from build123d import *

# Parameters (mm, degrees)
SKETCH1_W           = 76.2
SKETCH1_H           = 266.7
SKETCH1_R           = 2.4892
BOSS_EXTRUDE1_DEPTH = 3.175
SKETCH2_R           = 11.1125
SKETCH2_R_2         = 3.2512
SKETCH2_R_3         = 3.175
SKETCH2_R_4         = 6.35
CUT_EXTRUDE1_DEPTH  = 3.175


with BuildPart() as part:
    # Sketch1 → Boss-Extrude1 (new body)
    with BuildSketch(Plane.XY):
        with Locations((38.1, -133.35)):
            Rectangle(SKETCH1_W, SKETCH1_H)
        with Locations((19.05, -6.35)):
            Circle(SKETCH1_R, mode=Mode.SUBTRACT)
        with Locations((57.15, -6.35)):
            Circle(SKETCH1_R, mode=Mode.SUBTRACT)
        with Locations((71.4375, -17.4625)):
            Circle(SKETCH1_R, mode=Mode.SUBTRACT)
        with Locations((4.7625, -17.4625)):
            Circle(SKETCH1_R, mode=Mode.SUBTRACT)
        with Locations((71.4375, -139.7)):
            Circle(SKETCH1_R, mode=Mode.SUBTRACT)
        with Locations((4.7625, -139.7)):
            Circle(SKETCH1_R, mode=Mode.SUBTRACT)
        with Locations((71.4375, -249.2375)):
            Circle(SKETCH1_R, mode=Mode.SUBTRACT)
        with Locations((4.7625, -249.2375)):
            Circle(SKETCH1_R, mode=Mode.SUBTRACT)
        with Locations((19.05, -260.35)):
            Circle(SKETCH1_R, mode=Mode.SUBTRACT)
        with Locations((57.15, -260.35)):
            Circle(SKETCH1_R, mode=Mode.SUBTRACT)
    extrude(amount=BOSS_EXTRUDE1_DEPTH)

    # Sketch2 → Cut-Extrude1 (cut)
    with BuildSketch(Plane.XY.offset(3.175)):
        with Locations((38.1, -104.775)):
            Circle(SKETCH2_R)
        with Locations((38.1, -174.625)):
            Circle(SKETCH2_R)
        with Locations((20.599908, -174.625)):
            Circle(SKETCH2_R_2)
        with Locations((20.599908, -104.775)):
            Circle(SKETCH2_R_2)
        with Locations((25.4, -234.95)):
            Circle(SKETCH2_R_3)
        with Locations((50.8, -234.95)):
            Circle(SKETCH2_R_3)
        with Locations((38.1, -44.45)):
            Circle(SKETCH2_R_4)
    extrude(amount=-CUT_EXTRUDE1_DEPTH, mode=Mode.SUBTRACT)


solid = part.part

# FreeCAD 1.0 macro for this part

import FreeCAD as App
import Part
import Sketcher

V = App.Vector
Q = App.Units.Quantity


def add_polygon(sketch, points):
    """Adds a closed chain of lines whose ends are joined by coincident constraints."""
    first, n = sketch.GeometryCount, len(points)
    for a, b in zip(points, points[1:] + points[:1]):
        sketch.addGeometry(Part.LineSegment(App.Vector(*a, 0), App.Vector(*b, 0)), False)
    for i in range(n):
        sketch.addConstraint(Sketcher.Constraint("Coincident", first + i, 2, first + (i + 1) % n, 1))

doc = App.newDocument("Part")
body = doc.addObject("PartDesign::Body", "Body")

# Sketch on XY plane
sketch1 = body.newObject("Sketcher::SketchObject", "Sketch")
sketch1.AttachmentSupport = (doc.getObject("XY_Plane"), [""])
sketch1.MapMode = "FlatFace"
add_polygon(sketch1, [(0, 0), (0, -266.7), (76.2, -266.7), (76.2, 0)])  # lines 0-3
sketch1.addGeometry(Part.Circle(V(4.8, -249.2, 0), V(0, 0, 1), 2.5), False)  # 4
sketch1.addGeometry(Part.Circle(V(19.1, -260.4, 0), V(0, 0, 1), 2.5), False)  # 5
sketch1.addGeometry(Part.Circle(V(4.8, -139.7, 0), V(0, 0, 1), 2.5), False)  # 6
sketch1.addGeometry(Part.Circle(V(57.1, -260.4, 0), V(0, 0, 1), 2.5), False)  # 7
sketch1.addGeometry(Part.Circle(V(71.4, -249.2, 0), V(0, 0, 1), 2.5), False)  # 8
sketch1.addGeometry(Part.Circle(V(71.4, -139.7, 0), V(0, 0, 1), 2.5), False)  # 9
sketch1.addGeometry(Part.Circle(V(4.8, -17.5, 0), V(0, 0, 1), 2.5), False)  # 10
sketch1.addGeometry(Part.Circle(V(19.1, -6.3, 0), V(0, 0, 1), 2.5), False)  # 11
sketch1.addGeometry(Part.Circle(V(57.1, -6.3, 0), V(0, 0, 1), 2.5), False)  # 12
sketch1.addGeometry(Part.Circle(V(71.4, -17.5, 0), V(0, 0, 1), 2.5), False)  # 13
sketch1.addConstraint(Sketcher.Constraint("Vertical", 0))
sketch1.addConstraint(Sketcher.Constraint("Horizontal", 1))
sketch1.addConstraint(Sketcher.Constraint("Vertical", 2))
sketch1.addConstraint(Sketcher.Constraint("Horizontal", 3))
sketch1.addConstraint(Sketcher.Constraint("Coincident", 3, 2, -1, 1))
sketch1.addConstraint(Sketcher.Constraint("Equal", 4, 5))
sketch1.addConstraint(Sketcher.Constraint("Equal", 5, 6))
sketch1.addConstraint(Sketcher.Constraint("Equal", 6, 7))
sketch1.addConstraint(Sketcher.Constraint("Equal", 7, 8))
sketch1.addConstraint(Sketcher.Constraint("Equal", 8, 9))
sketch1.addConstraint(Sketcher.Constraint("Equal", 9, 10))
sketch1.addConstraint(Sketcher.Constraint("Equal", 10, 11))
sketch1.addConstraint(Sketcher.Constraint("Equal", 11, 12))
sketch1.addConstraint(Sketcher.Constraint("Equal", 12, 13))
sketch1.addConstraint(Sketcher.Constraint("Horizontal", 5, 3, 7, 3))
sketch1.addConstraint(Sketcher.Constraint("Horizontal", 4, 3, 8, 3))
sketch1.addConstraint(Sketcher.Constraint("Horizontal", 6, 3, 9, 3))
sketch1.addConstraint(Sketcher.Constraint("Horizontal", 11, 3, 12, 3))
sketch1.addConstraint(Sketcher.Constraint("Horizontal", 10, 3, 13, 3))
sketch1.addConstraint(Sketcher.Constraint("Vertical", 4, 3, 6, 3))
sketch1.addConstraint(Sketcher.Constraint("Vertical", 8, 3, 9, 3))
sketch1.addConstraint(Sketcher.Constraint("Vertical", 6, 3, 10, 3))
sketch1.addConstraint(Sketcher.Constraint("Vertical", 5, 3, 11, 3))
sketch1.addConstraint(Sketcher.Constraint("Vertical", 7, 3, 12, 3))
sketch1.addConstraint(Sketcher.Constraint("Vertical", 9, 3, 13, 3))
sketch1.addConstraint(Sketcher.Constraint("DistanceX", 1, 1, 1, 2, Q("3 in")))
sketch1.addConstraint(Sketcher.Constraint("Diameter", 4, Q("0.196 in")))
sketch1.addConstraint(Sketcher.Constraint("DistanceY", 0, 2, 0, 1, Q("10.5 in")))
sketch1.addConstraint(Sketcher.Constraint("DistanceY", 0, 2, 6, 3, Q("5 in")))
sketch1.addConstraint(Sketcher.Constraint("DistanceX", 5, 3, 7, 3, Q("1.5 in")))
sketch1.addConstraint(Sketcher.Constraint("DistanceX", -1, 1, 5, 3, Q("0.75 in")))
sketch1.addConstraint(Sketcher.Constraint("DistanceY", 5, 3, -1, 1, Q("10.25 in")))
sketch1.addConstraint(Sketcher.Constraint("DistanceY", 11, 3, -1, 1, Q("0.25 in")))
sketch1.addConstraint(Sketcher.Constraint("DistanceX", -1, 1, 4, 3, Q("0.1875 in")))
sketch1.addConstraint(Sketcher.Constraint("DistanceY", 4, 3, -1, 1, Q("9.8125 in")))
sketch1.addConstraint(Sketcher.Constraint("DistanceX", -1, 1, 8, 3, Q("2.8125 in")))
sketch1.addConstraint(Sketcher.Constraint("DistanceY", 10, 3, -1, 1, Q("0.6875 in")))
pad1 = body.newObject("PartDesign::Pad", "Pad")
pad1.Profile = sketch1
pad1.Length = Q("0.125 in")

# Sketch on XY plane
sketch2 = body.newObject("Sketcher::SketchObject", "Sketch001")
sketch2.AttachmentSupport = (doc.getObject("XY_Plane"), [""])
sketch2.MapMode = "FlatFace"
sketch2.AttachmentOffset = App.Placement(V(0, 0, 0.125 * 25.4), App.Rotation())
sketch2.addGeometry(Part.Circle(V(38.1, -104.8, 0), V(0, 0, 1), 11.1), False)
sketch2.addGeometry(Part.Circle(V(38.1, -174.6, 0), V(0, 0, 1), 11.1), False)
sketch2.addGeometry(Part.Circle(V(20.6, -174.6, 0), V(0, 0, 1), 3.3), False)
sketch2.addGeometry(Part.Circle(V(20.6, -104.8, 0), V(0, 0, 1), 3.3), False)
sketch2.addGeometry(Part.Circle(V(25.4, -234.9, 0), V(0, 0, 1), 3.2), False)
sketch2.addGeometry(Part.Circle(V(50.8, -234.9, 0), V(0, 0, 1), 3.2), False)
sketch2.addGeometry(Part.Circle(V(38.1, -44.5, 0), V(0, 0, 1), 6.3), False)
sketch2.addConstraint(Sketcher.Constraint("Equal", 0, 1))
sketch2.addConstraint(Sketcher.Constraint("Equal", 2, 3))
sketch2.addConstraint(Sketcher.Constraint("Equal", 4, 5))
sketch2.addConstraint(Sketcher.Constraint("Horizontal", 1, 3, 2, 3))
sketch2.addConstraint(Sketcher.Constraint("Horizontal", 0, 3, 3, 3))
sketch2.addConstraint(Sketcher.Constraint("Horizontal", 4, 3, 5, 3))
sketch2.addConstraint(Sketcher.Constraint("Vertical", 0, 3, 1, 3))
sketch2.addConstraint(Sketcher.Constraint("Vertical", 2, 3, 3, 3))
sketch2.addConstraint(Sketcher.Constraint("Vertical", 1, 3, 6, 3))
sketch2.addConstraint(Sketcher.Constraint("Diameter", 6, Q("0.5 in")))
sketch2.addConstraint(Sketcher.Constraint("Diameter", 4, Q("0.25 in")))
sketch2.addConstraint(Sketcher.Constraint("Diameter", 0, Q("0.875 in")))
sketch2.addConstraint(Sketcher.Constraint("Diameter", 2, Q("0.256 in")))
sketch2.addConstraint(Sketcher.Constraint("DistanceX", -1, 1, 4, 3, Q("1 in")))
sketch2.addConstraint(Sketcher.Constraint("DistanceX", -1, 1, 5, 3, Q("2 in")))
sketch2.addConstraint(Sketcher.Constraint("DistanceX", -1, 1, 0, 3, Q("1.5 in")))
sketch2.addConstraint(Sketcher.Constraint("DistanceY", 4, 3, 6, 3, Q("7.5 in")))
sketch2.addConstraint(Sketcher.Constraint("DistanceY", 4, 3, -1, 1, Q("9.25 in")))
sketch2.addConstraint(Sketcher.Constraint("DistanceY", 1, 3, 0, 3, Q("2.75 in")))
sketch2.addConstraint(Sketcher.Constraint("DistanceY", 0, 3, -1, 1, Q("4.125 in")))
sketch2.addConstraint(Sketcher.Constraint("DistanceX", 2, 3, 4, 3, 4.800092))
pocket1 = body.newObject("PartDesign::Pocket", "Pocket")
pocket1.Profile = sketch2
pocket1.Length = Q("0.125 in")

doc.recompute()
